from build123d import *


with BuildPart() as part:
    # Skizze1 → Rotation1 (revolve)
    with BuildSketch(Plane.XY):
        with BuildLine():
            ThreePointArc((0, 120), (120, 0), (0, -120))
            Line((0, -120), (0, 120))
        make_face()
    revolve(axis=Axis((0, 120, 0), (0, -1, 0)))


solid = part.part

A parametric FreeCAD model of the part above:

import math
import FreeCAD as App
import Part
import Sketcher
from FreeCAD import Vector
Q = App.Units.Quantity

doc = App.newDocument("Part")
params = doc.addObject("Spreadsheet::Sheet", "Params")
for row, (alias, value) in enumerate([
    ("sketch1_radius", "120 mm"),
    ("revolution_angle", "360 deg"),
], start=1):
    params.set(f"A{row}", alias)
    params.set(f"B{row}", "=" + value)
    params.setAlias(f"B{row}", alias)

body = doc.addObject("PartDesign::Body", "Body")

sketch1 = body.newObject("Sketcher::SketchObject", "Sketch")
sketch1.AttachmentSupport = (doc.getObject("XY_Plane"), [""])
sketch1.MapMode = "FlatFace"
sketch1.addGeometry(Part.ArcOfCircle(Part.Circle(Vector(0, 0, 0), Vector(0, 0, 1), 120), math.radians(-90), math.radians(90)), False)
sketch1.addGeometry(Part.LineSegment(Vector(0, 120, 0), Vector(0, -120, 0)), False)
sketch1.addConstraint(Sketcher.Constraint("Coincident", 0, 1, 1, 2))
sketch1.addConstraint(Sketcher.Constraint("Coincident", 1, 1, 0, 2))
sketch1.addConstraint(Sketcher.Constraint("Vertical", 1))
sketch1.addConstraint(Sketcher.Constraint("Coincident", 0, 3, -1, 1))
sketch1.addConstraint(Sketcher.Constraint("PointOnObject", 0, 1, -2))
sketch1.addConstraint(Sketcher.Constraint("Radius", 0, Q("120 mm")))
sketch1.setExpression("Constraints[5]", "Params.sketch1_radius")
revolution = body.newObject("PartDesign::Revolution", "Revolution")
revolution.Profile = sketch1
revolution.ReferenceAxis = (sketch1, ["V_Axis"])
revolution.setExpression("Angle", "Params.revolution_angle")

doc.recompute()
